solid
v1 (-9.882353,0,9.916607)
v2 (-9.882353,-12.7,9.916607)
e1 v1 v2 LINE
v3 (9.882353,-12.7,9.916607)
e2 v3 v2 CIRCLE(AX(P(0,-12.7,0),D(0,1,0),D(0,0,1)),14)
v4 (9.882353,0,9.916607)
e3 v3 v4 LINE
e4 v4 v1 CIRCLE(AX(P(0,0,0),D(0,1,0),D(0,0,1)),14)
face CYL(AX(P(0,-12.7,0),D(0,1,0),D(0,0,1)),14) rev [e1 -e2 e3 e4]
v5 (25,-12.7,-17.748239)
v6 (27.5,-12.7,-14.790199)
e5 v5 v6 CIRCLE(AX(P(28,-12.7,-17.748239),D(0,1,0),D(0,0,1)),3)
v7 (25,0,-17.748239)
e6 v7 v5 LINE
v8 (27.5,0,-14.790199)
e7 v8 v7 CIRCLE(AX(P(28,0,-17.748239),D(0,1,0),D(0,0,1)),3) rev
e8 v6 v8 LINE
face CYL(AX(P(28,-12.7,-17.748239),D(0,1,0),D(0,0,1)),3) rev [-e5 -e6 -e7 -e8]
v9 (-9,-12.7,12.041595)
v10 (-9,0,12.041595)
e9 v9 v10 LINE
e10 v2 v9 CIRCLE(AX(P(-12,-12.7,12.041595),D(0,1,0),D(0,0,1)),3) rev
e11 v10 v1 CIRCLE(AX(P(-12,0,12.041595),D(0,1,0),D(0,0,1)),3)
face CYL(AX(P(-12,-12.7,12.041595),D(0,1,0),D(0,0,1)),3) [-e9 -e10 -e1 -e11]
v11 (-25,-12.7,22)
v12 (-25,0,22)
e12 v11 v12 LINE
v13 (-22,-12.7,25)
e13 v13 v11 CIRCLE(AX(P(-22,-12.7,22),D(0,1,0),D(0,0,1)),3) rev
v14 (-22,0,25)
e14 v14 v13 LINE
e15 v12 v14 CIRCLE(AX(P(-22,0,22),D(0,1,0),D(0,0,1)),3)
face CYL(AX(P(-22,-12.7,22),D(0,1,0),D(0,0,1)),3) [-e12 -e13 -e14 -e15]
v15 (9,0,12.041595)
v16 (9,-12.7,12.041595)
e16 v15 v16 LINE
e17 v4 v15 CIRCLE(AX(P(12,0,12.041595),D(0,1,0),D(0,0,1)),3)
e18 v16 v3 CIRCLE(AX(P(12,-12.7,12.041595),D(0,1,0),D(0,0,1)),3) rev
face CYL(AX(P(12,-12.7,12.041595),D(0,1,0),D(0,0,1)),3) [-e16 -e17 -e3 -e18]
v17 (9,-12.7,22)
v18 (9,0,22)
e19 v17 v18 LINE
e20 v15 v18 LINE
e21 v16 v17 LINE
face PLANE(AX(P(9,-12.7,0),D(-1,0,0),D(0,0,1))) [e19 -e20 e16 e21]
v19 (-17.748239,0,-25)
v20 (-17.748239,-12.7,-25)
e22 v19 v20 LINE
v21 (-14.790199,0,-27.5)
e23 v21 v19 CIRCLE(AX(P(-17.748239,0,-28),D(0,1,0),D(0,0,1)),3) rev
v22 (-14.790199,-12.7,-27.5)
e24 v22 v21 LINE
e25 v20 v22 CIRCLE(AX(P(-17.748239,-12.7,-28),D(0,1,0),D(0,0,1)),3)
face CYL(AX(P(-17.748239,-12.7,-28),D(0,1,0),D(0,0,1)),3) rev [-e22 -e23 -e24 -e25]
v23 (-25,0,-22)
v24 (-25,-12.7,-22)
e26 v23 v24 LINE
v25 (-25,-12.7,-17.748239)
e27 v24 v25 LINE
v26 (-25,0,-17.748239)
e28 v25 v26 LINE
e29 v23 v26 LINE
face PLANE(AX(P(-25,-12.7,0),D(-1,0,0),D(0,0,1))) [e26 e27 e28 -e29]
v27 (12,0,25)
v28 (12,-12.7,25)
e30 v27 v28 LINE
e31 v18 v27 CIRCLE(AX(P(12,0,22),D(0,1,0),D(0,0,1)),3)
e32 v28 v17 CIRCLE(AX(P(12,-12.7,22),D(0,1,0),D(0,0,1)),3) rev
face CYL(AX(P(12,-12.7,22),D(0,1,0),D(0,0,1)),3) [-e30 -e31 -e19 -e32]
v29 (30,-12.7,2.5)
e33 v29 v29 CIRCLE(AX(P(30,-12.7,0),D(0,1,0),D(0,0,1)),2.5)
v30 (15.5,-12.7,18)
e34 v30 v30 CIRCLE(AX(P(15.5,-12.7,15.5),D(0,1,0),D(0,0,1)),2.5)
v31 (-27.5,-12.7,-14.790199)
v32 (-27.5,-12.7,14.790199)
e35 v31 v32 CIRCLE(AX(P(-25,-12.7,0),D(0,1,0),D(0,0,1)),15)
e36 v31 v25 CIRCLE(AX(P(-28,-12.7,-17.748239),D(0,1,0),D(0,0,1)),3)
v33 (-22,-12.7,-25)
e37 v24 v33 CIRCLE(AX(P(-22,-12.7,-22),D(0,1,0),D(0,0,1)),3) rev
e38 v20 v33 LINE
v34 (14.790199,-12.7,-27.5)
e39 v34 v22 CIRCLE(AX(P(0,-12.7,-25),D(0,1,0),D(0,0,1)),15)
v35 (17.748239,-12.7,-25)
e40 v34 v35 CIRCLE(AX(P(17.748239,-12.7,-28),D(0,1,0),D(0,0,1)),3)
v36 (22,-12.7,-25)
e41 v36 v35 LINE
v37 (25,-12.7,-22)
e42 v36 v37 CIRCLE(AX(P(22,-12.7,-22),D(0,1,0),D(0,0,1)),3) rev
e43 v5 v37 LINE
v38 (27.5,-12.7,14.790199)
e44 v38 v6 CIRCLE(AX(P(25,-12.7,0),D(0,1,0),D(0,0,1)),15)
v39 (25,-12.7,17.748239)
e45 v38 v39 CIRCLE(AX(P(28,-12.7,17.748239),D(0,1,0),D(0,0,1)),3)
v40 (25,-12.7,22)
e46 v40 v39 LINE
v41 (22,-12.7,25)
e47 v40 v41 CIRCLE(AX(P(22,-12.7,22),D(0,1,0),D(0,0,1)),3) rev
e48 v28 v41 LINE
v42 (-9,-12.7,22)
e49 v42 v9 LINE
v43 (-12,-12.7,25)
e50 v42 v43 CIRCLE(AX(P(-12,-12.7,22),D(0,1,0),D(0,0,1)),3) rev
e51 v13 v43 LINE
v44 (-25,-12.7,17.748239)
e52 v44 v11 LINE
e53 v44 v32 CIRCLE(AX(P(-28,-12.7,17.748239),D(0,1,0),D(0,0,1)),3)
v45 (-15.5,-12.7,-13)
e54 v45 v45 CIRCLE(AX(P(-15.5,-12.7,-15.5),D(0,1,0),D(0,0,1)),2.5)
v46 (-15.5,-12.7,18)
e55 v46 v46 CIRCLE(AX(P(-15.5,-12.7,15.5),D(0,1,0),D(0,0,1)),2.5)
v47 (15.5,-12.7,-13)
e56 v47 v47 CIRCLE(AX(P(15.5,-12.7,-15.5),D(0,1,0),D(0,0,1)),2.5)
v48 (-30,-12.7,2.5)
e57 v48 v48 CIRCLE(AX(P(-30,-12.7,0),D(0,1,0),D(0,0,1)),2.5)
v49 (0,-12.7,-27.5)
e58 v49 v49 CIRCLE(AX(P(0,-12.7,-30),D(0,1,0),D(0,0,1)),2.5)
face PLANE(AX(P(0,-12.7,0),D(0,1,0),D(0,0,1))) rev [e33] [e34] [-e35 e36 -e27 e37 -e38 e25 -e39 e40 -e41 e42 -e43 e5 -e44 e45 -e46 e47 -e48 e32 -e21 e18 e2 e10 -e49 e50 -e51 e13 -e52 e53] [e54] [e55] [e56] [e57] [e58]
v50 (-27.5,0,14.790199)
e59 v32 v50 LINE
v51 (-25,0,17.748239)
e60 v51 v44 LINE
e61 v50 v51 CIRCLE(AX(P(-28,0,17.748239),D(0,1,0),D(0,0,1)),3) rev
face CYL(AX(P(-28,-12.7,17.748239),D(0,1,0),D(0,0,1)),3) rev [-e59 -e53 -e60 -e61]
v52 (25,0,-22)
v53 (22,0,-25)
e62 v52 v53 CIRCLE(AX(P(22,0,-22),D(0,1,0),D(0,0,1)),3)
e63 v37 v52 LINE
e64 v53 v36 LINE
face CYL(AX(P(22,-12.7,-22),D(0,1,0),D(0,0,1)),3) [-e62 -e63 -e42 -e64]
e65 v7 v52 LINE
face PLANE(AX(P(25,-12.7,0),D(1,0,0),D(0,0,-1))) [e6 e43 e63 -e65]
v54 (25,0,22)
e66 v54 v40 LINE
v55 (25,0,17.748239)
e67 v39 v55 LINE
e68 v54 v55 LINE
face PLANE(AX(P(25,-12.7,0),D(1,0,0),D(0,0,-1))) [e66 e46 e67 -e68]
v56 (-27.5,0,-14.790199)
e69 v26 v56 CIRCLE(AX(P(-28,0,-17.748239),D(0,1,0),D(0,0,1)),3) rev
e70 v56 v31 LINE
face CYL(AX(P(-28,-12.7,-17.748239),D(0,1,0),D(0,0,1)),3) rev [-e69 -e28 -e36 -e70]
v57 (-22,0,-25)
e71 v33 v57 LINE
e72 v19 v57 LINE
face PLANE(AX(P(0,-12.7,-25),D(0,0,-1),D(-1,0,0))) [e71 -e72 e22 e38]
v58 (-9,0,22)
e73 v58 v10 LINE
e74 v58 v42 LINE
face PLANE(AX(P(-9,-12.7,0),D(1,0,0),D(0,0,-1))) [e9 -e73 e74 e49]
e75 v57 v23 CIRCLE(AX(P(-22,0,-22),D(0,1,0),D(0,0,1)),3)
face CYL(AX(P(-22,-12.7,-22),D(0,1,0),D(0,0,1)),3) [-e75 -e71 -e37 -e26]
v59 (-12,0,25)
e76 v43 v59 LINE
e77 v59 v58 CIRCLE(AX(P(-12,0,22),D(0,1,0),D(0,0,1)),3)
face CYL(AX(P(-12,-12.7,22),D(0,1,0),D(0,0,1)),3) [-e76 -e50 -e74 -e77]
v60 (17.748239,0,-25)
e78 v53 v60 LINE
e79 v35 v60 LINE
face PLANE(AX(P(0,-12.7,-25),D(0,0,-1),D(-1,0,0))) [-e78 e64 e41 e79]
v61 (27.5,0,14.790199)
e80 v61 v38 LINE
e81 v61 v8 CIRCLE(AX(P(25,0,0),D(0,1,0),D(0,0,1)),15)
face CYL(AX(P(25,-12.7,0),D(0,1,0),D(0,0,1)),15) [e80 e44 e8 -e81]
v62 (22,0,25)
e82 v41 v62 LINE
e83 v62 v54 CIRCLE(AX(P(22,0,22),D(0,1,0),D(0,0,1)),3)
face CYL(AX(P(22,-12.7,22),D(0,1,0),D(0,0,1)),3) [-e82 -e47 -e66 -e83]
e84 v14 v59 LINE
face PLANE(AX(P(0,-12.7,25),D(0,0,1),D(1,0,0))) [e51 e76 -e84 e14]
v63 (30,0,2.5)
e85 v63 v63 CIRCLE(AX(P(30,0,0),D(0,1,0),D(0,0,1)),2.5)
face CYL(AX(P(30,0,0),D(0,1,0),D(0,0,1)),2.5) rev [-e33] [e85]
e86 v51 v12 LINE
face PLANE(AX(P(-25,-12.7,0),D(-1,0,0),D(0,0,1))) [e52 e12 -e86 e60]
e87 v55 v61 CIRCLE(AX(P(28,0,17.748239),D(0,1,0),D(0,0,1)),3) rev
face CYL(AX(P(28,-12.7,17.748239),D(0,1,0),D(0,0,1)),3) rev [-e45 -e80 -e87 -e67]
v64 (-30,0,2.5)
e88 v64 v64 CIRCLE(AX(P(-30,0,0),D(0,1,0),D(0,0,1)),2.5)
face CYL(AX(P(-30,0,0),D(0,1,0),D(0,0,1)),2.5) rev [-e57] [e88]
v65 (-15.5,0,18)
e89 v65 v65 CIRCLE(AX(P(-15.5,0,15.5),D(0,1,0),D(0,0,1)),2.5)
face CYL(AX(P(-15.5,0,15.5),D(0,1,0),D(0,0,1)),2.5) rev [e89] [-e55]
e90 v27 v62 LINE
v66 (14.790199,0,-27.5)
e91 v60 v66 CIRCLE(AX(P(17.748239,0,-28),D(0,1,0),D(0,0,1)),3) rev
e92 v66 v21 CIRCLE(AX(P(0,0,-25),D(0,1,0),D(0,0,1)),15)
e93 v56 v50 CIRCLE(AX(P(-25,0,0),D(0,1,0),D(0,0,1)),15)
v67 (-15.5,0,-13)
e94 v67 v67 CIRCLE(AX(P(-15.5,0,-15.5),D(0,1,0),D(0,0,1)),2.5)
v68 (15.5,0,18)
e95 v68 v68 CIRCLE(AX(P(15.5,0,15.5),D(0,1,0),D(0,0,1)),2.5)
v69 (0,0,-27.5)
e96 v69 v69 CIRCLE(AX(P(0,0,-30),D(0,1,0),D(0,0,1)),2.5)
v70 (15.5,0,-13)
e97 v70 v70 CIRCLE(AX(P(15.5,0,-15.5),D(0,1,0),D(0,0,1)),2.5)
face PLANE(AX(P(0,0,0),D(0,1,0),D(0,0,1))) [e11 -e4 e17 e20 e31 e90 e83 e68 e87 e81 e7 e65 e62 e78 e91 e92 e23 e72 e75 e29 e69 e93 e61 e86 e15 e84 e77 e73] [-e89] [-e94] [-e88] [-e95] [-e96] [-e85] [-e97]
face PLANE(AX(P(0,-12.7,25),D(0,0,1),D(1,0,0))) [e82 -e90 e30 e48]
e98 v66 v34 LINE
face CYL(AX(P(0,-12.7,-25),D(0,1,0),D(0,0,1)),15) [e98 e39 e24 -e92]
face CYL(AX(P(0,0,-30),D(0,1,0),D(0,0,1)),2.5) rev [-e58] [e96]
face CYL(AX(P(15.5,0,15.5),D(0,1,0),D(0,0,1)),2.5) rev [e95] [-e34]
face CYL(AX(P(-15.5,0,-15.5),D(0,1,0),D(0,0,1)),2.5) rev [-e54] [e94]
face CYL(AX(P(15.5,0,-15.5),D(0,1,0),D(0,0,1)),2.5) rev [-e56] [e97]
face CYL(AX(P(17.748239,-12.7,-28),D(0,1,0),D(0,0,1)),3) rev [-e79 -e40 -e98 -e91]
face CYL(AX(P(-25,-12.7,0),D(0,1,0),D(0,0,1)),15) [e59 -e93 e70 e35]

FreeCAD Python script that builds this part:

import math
import FreeCAD as App
import Part
import Sketcher

V = App.Vector


def edges_at(feature, points):
    """Names of the edges that pass closest to the given points."""
    edges = feature.Shape.Edges
    near = lambda p: min(range(len(edges)), key=lambda i: edges[i].distToShape(Part.Vertex(*p))[0])
    return sorted({f"Edge{near(p) + 1}" for p in points})

doc = App.newDocument("Part")
body = doc.addObject("PartDesign::Body", "Body")

sketch1 = body.newObject("Sketcher::SketchObject", "Sketch")
sketch1.AttachmentSupport = (doc.getObject("XZ_Plane"), [""])
sketch1.MapMode = "FlatFace"
sketch1.addGeometry(Part.LineSegment(V(-25, 15, 0), V(-25, 25, 0)), False)
sketch1.addGeometry(Part.LineSegment(V(-25, 25, 0), V(-9, 25, 0)), False)
sketch1.addGeometry(Part.LineSegment(V(-9, 25, 0), V(-9, 11, 0)), False)
sketch1.addGeometry(Part.ArcOfCircle(Part.Circle(V(0, 0, 0), V(0, 0, 1), 14), math.radians(130), math.radians(410)), False)
sketch1.addGeometry(Part.LineSegment(V(9, 11, 0), V(9, 25, 0)), False)
sketch1.addGeometry(Part.LineSegment(V(9, 25, 0), V(25, 25, 0)), False)
sketch1.addGeometry(Part.LineSegment(V(25, 25, 0), V(25, 15, 0)), False)
sketch1.addGeometry(Part.ArcOfCircle(Part.Circle(V(25, 0, 0), V(0, 0, 1), 15), math.radians(-90), math.radians(90)), False)
sketch1.addGeometry(Part.LineSegment(V(25, -15, 0), V(25, -25, 0)), False)
sketch1.addGeometry(Part.LineSegment(V(25, -25, 0), V(15, -25, 0)), False)
sketch1.addGeometry(Part.ArcOfCircle(Part.Circle(V(0, -25, 0), V(0, 0, 1), 15), math.radians(180), math.radians(360)), False)
sketch1.addGeometry(Part.LineSegment(V(-15, -25, 0), V(-25, -25, 0)), False)
sketch1.addGeometry(Part.LineSegment(V(-25, -25, 0), V(-25, -15, 0)), False)
sketch1.addGeometry(Part.ArcOfCircle(Part.Circle(V(-25, 0, 0), V(0, 0, 1), 15), math.radians(90), math.radians(270)), False)
sketch1.addConstraint(Sketcher.Constraint("Coincident", 0, 2, 1, 1))
sketch1.addConstraint(Sketcher.Constraint("Coincident", 1, 2, 2, 1))
sketch1.addConstraint(Sketcher.Constraint("Coincident", 2, 2, 3, 1))
sketch1.addConstraint(Sketcher.Constraint("Coincident", 3, 2, 4, 1))
sketch1.addConstraint(Sketcher.Constraint("Coincident", 4, 2, 5, 1))
sketch1.addConstraint(Sketcher.Constraint("Coincident", 5, 2, 6, 1))
sketch1.addConstraint(Sketcher.Constraint("Coincident", 6, 2, 7, 2))
sketch1.addConstraint(Sketcher.Constraint("Coincident", 7, 1, 8, 1))
sketch1.addConstraint(Sketcher.Constraint("Coincident", 8, 2, 9, 1))
sketch1.addConstraint(Sketcher.Constraint("Coincident", 9, 2, 10, 2))
sketch1.addConstraint(Sketcher.Constraint("Coincident", 10, 1, 11, 1))
sketch1.addConstraint(Sketcher.Constraint("Coincident", 11, 2, 12, 1))
sketch1.addConstraint(Sketcher.Constraint("Coincident", 12, 2, 13, 2))
sketch1.addConstraint(Sketcher.Constraint("Coincident", 13, 1, 0, 1))
sketch1.addConstraint(Sketcher.Constraint("Vertical", 0))
sketch1.addConstraint(Sketcher.Constraint("Horizontal", 1))
sketch1.addConstraint(Sketcher.Constraint("Vertical", 2))
sketch1.addConstraint(Sketcher.Constraint("Vertical", 4))
sketch1.addConstraint(Sketcher.Constraint("Horizontal", 5))
sketch1.addConstraint(Sketcher.Constraint("Vertical", 6))
sketch1.addConstraint(Sketcher.Constraint("Vertical", 8))
sketch1.addConstraint(Sketcher.Constraint("Horizontal", 9))
sketch1.addConstraint(Sketcher.Constraint("Horizontal", 11))
sketch1.addConstraint(Sketcher.Constraint("Vertical", 12))
sketch1.addConstraint(Sketcher.Constraint("Coincident", 3, 3, -1, 1))
sketch1.addConstraint(Sketcher.Constraint("Equal", 7, 10))
sketch1.addConstraint(Sketcher.Constraint("Equal", 10, 13))
sketch1.addConstraint(Sketcher.Constraint("Symmetric", 7, 3, 13, 3, -1, 1))
sketch1.addConstraint(Sketcher.Constraint("Symmetric", 0, 2, 8, 2, -1, 1))
sketch1.addConstraint(Sketcher.Constraint("Symmetric", 5, 2, 11, 2, -1, 1))
sketch1.addConstraint(Sketcher.Constraint("Symmetric", 1, 2, 4, 2, -2))
sketch1.addConstraint(Sketcher.Constraint("Symmetric", 7, 1, 12, 2, -2))
sketch1.addConstraint(Sketcher.Constraint("PointOnObject", 10, 3, -2))
sketch1.addConstraint(Sketcher.Constraint("Horizontal", 10, 3, 8, 2))
sketch1.addConstraint(Sketcher.Constraint("Vertical", 13, 3, 0, 2))
sketch1.addConstraint(Sketcher.Constraint("Equal", 11, 0))
sketch1.addConstraint(Sketcher.Constraint("Radius", 3, 14.0))
sketch1.addConstraint(Sketcher.Constraint("Radius", 7, 15.0))
sketch1.addConstraint(Sketcher.Constraint("DistanceX", 1, 1, 1, 2, 16.0))
sketch1.addConstraint(Sketcher.Constraint("DistanceX", 9, 2, 9, 1, 10.0))
pad1 = body.newObject("PartDesign::Pad", "Pad")
pad1.Profile = sketch1
pad1.Length = 12.7

sketch2 = body.newObject("Sketcher::SketchObject", "Sketch001")
sketch2.AttachmentSupport = (doc.getObject("XZ_Plane"), [""])
sketch2.MapMode = "FlatFace"
sketch2.addGeometry(Part.Circle(V(-15.5, 15.5, 0), V(0, 0, 1), 2.5), False)
sketch2.addGeometry(Part.Circle(V(-15.5, -15.5, 0), V(0, 0, 1), 2.5), False)
sketch2.addGeometry(Part.Circle(V(15.5, -15.5, 0), V(0, 0, 1), 2.5), False)
sketch2.addGeometry(Part.Circle(V(15.5, 15.5, 0), V(0, 0, 1), 2.5), False)
sketch2.addGeometry(Part.Circle(V(-30, 0, 0), V(0, 0, 1), 2.5), False)
sketch2.addGeometry(Part.Circle(V(0, -30, 0), V(0, 0, 1), 2.5), False)
sketch2.addGeometry(Part.Circle(V(30, 0, 0), V(0, 0, 1), 2.5), False)
sketch2.addConstraint(Sketcher.Constraint("Equal", 0, 1))
sketch2.addConstraint(Sketcher.Constraint("Equal", 1, 2))
sketch2.addConstraint(Sketcher.Constraint("Equal", 2, 3))
sketch2.addConstraint(Sketcher.Constraint("Equal", 3, 4))
sketch2.addConstraint(Sketcher.Constraint("Equal", 4, 5))
sketch2.addConstraint(Sketcher.Constraint("Equal", 5, 6))
sketch2.addConstraint(Sketcher.Constraint("Symmetric", 0, 3, 2, 3, -1, 1))
sketch2.addConstraint(Sketcher.Constraint("Symmetric", 1, 3, 3, 3, -1, 1))
sketch2.addConstraint(Sketcher.Constraint("Symmetric", 4, 3, 6, 3, -1, 1))
sketch2.addConstraint(Sketcher.Constraint("Symmetric", 1, 3, 2, 3, -2))
sketch2.addConstraint(Sketcher.Constraint("PointOnObject", 4, 3, -1))
sketch2.addConstraint(Sketcher.Constraint("PointOnObject", 5, 3, -2))
sketch2.addConstraint(Sketcher.Constraint("Diameter", 0, 5.0))
sketch2.addConstraint(Sketcher.Constraint("DistanceX", 4, 3, -1, 1, 30.0))
sketch2.addConstraint(Sketcher.Constraint("DistanceY", 5, 3, -1, 1, 30.0))
sketch2.addConstraint(Sketcher.Constraint("DistanceY", 1, 3, 0, 3, 31.0))
sketch2.addConstraint(Sketcher.Constraint("DistanceX", 1, 3, 2, 3, 31.0))
doc.recompute()
hole = body.newObject("PartDesign::Hole", "Hole")
hole.Profile = sketch2
hole.ThreadType = "None"
hole.Diameter = 5
hole.DepthType = "ThroughAll"
hole.Reversed = True
doc.recompute()

fillet = body.newObject("PartDesign::Fillet", "Fillet")
fillet.Base = (hole, edges_at(hole, [
    (-25, -6.35, -15),
    (-25, -6.35, -25),
    (-15, -6.35, -25),
    (15, -6.35, -25),
    (25, -6.35, -25),
    (25, -6.35, -15),
    (25, -6.35, 15),
    (25, -6.35, 25),
    (9, -6.35, 25),
    (9, -6.35, 10.724),
    (-9, -6.35, 10.724),
    (-9, -6.35, 25),
    (-25, -6.35, 25),
    (-25, -6.35, 15),
]))
fillet.Radius = 3

doc.recompute()
